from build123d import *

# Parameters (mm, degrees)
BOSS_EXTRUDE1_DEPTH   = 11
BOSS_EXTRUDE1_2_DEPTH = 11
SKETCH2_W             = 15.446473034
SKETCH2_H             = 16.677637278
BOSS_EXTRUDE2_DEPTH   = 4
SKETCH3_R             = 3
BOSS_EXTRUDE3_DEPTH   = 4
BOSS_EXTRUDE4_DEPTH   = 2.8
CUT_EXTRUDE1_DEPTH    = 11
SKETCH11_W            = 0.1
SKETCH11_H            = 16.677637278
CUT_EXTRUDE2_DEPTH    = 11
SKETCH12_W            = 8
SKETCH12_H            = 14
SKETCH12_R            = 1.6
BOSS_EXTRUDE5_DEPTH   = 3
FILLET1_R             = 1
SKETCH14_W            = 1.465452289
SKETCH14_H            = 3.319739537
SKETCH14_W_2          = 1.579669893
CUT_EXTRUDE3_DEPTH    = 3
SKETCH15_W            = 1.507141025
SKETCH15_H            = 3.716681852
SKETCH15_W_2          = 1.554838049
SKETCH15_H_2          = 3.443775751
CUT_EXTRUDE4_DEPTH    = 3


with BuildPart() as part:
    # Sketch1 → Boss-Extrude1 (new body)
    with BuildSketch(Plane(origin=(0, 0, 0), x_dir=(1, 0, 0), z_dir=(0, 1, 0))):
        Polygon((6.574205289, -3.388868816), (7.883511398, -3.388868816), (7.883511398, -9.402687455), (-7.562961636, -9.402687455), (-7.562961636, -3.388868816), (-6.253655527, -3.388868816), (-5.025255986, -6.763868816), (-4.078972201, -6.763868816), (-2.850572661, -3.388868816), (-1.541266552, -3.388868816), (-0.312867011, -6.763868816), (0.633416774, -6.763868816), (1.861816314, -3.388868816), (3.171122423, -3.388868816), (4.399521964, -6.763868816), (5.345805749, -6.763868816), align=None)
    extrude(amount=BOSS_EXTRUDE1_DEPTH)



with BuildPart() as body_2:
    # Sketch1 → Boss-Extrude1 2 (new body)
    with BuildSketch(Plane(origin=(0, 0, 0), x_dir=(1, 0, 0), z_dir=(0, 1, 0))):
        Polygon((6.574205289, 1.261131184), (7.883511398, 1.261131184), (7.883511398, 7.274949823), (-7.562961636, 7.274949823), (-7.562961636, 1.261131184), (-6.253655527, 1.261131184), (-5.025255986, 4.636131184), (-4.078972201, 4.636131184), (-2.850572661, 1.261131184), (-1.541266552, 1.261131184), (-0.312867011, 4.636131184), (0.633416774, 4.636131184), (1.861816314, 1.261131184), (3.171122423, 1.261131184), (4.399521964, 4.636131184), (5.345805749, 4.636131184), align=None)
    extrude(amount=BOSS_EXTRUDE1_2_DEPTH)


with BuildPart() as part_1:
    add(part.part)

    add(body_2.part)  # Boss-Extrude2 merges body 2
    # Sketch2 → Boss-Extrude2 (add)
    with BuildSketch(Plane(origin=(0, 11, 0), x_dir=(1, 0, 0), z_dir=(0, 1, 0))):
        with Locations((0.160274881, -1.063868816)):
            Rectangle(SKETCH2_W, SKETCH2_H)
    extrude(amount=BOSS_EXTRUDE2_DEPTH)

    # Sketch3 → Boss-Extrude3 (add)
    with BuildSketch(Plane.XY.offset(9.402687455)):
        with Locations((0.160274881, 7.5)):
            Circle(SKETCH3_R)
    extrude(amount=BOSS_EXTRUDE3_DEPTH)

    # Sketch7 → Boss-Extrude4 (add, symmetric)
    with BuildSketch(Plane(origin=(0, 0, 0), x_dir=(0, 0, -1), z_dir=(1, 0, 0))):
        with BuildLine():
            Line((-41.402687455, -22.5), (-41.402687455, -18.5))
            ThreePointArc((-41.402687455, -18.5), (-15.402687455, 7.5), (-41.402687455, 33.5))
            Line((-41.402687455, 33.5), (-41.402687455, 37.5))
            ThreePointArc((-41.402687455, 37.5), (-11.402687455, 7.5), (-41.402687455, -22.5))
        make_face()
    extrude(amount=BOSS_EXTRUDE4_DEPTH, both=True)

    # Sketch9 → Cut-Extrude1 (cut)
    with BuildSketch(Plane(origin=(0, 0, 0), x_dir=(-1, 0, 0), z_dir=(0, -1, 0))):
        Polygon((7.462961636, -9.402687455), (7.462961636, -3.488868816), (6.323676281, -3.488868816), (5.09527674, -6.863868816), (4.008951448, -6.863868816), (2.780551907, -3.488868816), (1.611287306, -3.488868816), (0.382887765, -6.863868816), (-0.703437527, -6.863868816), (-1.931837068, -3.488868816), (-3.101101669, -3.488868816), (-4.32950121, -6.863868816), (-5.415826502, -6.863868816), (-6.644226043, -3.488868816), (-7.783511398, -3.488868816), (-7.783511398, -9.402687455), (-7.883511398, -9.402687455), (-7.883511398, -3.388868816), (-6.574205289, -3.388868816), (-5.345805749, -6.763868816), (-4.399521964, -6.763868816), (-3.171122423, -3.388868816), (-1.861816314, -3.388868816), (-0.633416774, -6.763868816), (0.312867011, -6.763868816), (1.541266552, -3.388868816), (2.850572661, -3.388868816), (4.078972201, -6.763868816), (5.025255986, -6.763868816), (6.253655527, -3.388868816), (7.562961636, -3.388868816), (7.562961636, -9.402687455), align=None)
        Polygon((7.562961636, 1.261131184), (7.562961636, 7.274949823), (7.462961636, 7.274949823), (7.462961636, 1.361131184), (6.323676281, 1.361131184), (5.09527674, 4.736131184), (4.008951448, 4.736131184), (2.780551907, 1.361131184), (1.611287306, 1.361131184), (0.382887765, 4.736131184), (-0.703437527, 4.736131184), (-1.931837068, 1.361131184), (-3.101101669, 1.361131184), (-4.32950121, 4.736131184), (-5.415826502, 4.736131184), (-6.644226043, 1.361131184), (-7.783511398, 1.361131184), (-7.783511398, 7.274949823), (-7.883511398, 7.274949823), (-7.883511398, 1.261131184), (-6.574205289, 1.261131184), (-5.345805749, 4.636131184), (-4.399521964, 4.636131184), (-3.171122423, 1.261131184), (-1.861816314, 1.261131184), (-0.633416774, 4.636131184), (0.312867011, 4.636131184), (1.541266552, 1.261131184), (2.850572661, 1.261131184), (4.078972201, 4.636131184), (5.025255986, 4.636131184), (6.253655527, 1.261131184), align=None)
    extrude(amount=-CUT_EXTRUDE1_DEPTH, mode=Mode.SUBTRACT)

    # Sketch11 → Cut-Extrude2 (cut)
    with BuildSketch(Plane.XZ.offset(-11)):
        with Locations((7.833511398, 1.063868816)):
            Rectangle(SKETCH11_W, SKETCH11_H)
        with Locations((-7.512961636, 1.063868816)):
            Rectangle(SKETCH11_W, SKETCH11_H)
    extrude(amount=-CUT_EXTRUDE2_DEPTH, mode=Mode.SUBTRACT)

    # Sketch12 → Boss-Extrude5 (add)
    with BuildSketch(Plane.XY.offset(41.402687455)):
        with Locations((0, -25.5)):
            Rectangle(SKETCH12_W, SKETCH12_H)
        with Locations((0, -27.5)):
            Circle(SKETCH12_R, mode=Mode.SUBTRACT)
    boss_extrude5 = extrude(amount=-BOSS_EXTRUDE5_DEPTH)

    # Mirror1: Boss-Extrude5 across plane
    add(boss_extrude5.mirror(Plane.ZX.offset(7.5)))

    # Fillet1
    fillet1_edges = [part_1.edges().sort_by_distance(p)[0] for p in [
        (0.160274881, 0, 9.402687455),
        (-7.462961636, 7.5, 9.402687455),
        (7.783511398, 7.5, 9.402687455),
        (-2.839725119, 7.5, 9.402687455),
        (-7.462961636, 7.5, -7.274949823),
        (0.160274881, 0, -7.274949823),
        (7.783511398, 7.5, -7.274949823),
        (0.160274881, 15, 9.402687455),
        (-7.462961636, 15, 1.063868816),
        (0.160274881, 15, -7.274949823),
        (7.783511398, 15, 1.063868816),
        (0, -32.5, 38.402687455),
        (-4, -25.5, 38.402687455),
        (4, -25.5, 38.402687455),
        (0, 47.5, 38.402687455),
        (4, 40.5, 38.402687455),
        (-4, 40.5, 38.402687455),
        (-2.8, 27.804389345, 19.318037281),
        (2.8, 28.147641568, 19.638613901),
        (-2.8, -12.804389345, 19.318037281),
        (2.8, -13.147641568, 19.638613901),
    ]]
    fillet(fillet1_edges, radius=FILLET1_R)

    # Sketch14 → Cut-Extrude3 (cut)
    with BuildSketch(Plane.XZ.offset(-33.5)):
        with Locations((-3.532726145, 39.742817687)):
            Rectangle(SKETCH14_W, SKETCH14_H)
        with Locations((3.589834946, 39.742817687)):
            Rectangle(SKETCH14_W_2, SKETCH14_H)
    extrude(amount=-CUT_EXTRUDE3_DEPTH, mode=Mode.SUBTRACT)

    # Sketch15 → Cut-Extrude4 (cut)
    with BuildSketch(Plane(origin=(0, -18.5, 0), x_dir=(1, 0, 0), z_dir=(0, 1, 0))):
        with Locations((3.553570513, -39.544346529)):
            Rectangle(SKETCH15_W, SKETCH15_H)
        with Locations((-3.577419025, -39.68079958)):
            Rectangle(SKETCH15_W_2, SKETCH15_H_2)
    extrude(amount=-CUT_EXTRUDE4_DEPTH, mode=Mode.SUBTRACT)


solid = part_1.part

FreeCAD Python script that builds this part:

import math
import FreeCAD as App
import Part
import Sketcher
from FreeCAD import Vector
Q = App.Units.Quantity


def edges_at(feature, points):
    """Names of the edges that pass closest to the given points."""
    edges = feature.Shape.Edges
    near = lambda p: min(range(len(edges)), key=lambda i: edges[i].distToShape(Part.Vertex(*p))[0])
    return sorted({f"Edge{near(p) + 1}" for p in points})


def add_polygon(sketch, points):
    """Adds a closed chain of lines whose ends are joined by coincident constraints."""
    first, n = sketch.GeometryCount, len(points)
    for a, b in zip(points, points[1:] + points[:1]):
        sketch.addGeometry(Part.LineSegment(App.Vector(*a, 0), App.Vector(*b, 0)), False)
    for i in range(n):
        sketch.addConstraint(Sketcher.Constraint("Coincident", first + i, 2, first + (i + 1) % n, 1))

doc = App.newDocument("Part")
body = doc.addObject("PartDesign::Body", "Body")

# Sketch on XZ plane
sketch1 = body.newObject("Sketcher::SketchObject", "Sketch")
sketch1.AttachmentSupport = (doc.getObject("XZ_Plane"), [""])
sketch1.MapMode = "FlatFace"
add_polygon(sketch1, [(7.883511, 3.388869), (6.574205, 3.388869), (5.345806, 6.763869), (4.399522, 6.763869), (3.171122, 3.388869), (1.861816, 3.388869), (0.633417, 6.763869), (-0.312867, 6.763869), (-1.541267, 3.388869), (-2.850573, 3.388869), (-4.078972, 6.763869), (-5.025256, 6.763869), (-6.253656, 3.388869), (-7.562962, 3.388869), (-7.562962, 9.402687), (7.883511, 9.402687)])  # lines 0-15
sketch1.addConstraint(Sketcher.Constraint("Horizontal", 0))
sketch1.addConstraint(Sketcher.Constraint("Horizontal", 2))
sketch1.addConstraint(Sketcher.Constraint("Horizontal", 4))
sketch1.addConstraint(Sketcher.Constraint("Horizontal", 6))
sketch1.addConstraint(Sketcher.Constraint("Horizontal", 8))
sketch1.addConstraint(Sketcher.Constraint("Horizontal", 10))
sketch1.addConstraint(Sketcher.Constraint("Horizontal", 12))
sketch1.addConstraint(Sketcher.Constraint("Vertical", 13))
sketch1.addConstraint(Sketcher.Constraint("Horizontal", 14))
sketch1.addConstraint(Sketcher.Constraint("Vertical", 15))
sketch1.addConstraint(Sketcher.Constraint("Parallel", 1, 5))
sketch1.addConstraint(Sketcher.Constraint("Parallel", 3, 7))
sketch1.addConstraint(Sketcher.Constraint("Parallel", 5, 9))
sketch1.addConstraint(Sketcher.Constraint("Parallel", 7, 11))
sketch1.addConstraint(Sketcher.Constraint("Horizontal", 0, 2, 3, 2))
sketch1.addConstraint(Sketcher.Constraint("Horizontal", 2, 2, 5, 2))
sketch1.addConstraint(Sketcher.Constraint("Horizontal", 4, 2, 7, 2))
sketch1.addConstraint(Sketcher.Constraint("Horizontal", 6, 2, 9, 2))
sketch1.addConstraint(Sketcher.Constraint("Horizontal", 8, 2, 11, 2))
sketch1.addConstraint(Sketcher.Constraint("Equal", 0, 4))
sketch1.addConstraint(Sketcher.Constraint("Equal", 2, 6))
sketch1.addConstraint(Sketcher.Constraint("Equal", 4, 8))
sketch1.addConstraint(Sketcher.Constraint("Equal", 6, 10))
sketch1.addConstraint(Sketcher.Constraint("Equal", 8, 12))
sketch1.addConstraint(Sketcher.Constraint("Equal", 1, 3))
sketch1.addConstraint(Sketcher.Constraint("Angle", 1, Q("110 deg")))
sketch1.addConstraint(Sketcher.Constraint("DistanceY", 0, 2, 1, 2, Q("3.375 mm")))
sketch1.addConstraint(Sketcher.Constraint("DistanceY", 13, 1, 13, 2, Q("6.013819 mm")))
sketch1.addConstraint(Sketcher.Constraint("DistanceX", 0, 2, 0, 1, Q("1.309306 mm")))
sketch1.addConstraint(Sketcher.Constraint("DistanceX", 2, 2, 2, 1, Q("0.946284 mm")))
sketch1.addConstraint(Sketcher.Constraint("DistanceY", -1, 1, 0, 2, Q("3.388869 mm")))
sketch1.addConstraint(Sketcher.Constraint("DistanceX", -1, 1, 2, 2, Q("4.399522 mm")))
pad1 = body.newObject("PartDesign::Pad", "Pad")
pad1.Profile = sketch1
pad1.Length = 11
pad1.Reversed = True
body2 = doc.addObject("PartDesign::Body", "Body001")

# Sketch on XZ plane
sketch2 = body2.newObject("Sketcher::SketchObject", "Sketch001")
sketch2.AttachmentSupport = (doc.getObject("XZ_Plane001"), [""])
sketch2.MapMode = "FlatFace"
add_polygon(sketch2, [(6.574205, -1.261131), (7.883511, -1.261131), (7.883511, -7.27495), (-7.562962, -7.27495), (-7.562962, -1.261131), (-6.253656, -1.261131), (-5.025256, -4.636131), (-4.078972, -4.636131), (-2.850573, -1.261131), (-1.541267, -1.261131), (-0.312867, -4.636131), (0.633417, -4.636131), (1.861816, -1.261131), (3.171122, -1.261131), (4.399522, -4.636131), (5.345806, -4.636131)])  # lines 0-15
sketch2.addConstraint(Sketcher.Constraint("Horizontal", 0))
sketch2.addConstraint(Sketcher.Constraint("Vertical", 1))
sketch2.addConstraint(Sketcher.Constraint("Horizontal", 2))
sketch2.addConstraint(Sketcher.Constraint("Vertical", 3))
sketch2.addConstraint(Sketcher.Constraint("Horizontal", 4))
sketch2.addConstraint(Sketcher.Constraint("Horizontal", 6))
sketch2.addConstraint(Sketcher.Constraint("Horizontal", 8))
sketch2.addConstraint(Sketcher.Constraint("Horizontal", 10))
sketch2.addConstraint(Sketcher.Constraint("Horizontal", 12))
sketch2.addConstraint(Sketcher.Constraint("Horizontal", 14))
sketch2.addConstraint(Sketcher.Constraint("Parallel", 5, 9))
sketch2.addConstraint(Sketcher.Constraint("Parallel", 7, 11))
sketch2.addConstraint(Sketcher.Constraint("Parallel", 9, 13))
sketch2.addConstraint(Sketcher.Constraint("Parallel", 11, 15))
sketch2.addConstraint(Sketcher.Constraint("Horizontal", 0, 2, 3, 2))
sketch2.addConstraint(Sketcher.Constraint("Horizontal", 4, 2, 7, 2))
sketch2.addConstraint(Sketcher.Constraint("Horizontal", 6, 2, 9, 2))
sketch2.addConstraint(Sketcher.Constraint("Horizontal", 8, 2, 11, 2))
sketch2.addConstraint(Sketcher.Constraint("Horizontal", 10, 2, 13, 2))
sketch2.addConstraint(Sketcher.Constraint("Equal", 0, 4))
sketch2.addConstraint(Sketcher.Constraint("Equal", 4, 8))
sketch2.addConstraint(Sketcher.Constraint("Equal", 6, 10))
sketch2.addConstraint(Sketcher.Constraint("Equal", 8, 12))
sketch2.addConstraint(Sketcher.Constraint("Equal", 10, 14))
sketch2.addConstraint(Sketcher.Constraint("Equal", 5, 7))
sketch2.addConstraint(Sketcher.Constraint("Angle", 5, Q("-70 deg")))
sketch2.addConstraint(Sketcher.Constraint("DistanceY", 5, 2, 4, 2, Q("3.375 mm")))
sketch2.addConstraint(Sketcher.Constraint("DistanceY", 1, 2, 1, 1, Q("6.013819 mm")))
sketch2.addConstraint(Sketcher.Constraint("DistanceX", 0, 1, 0, 2, Q("1.309306 mm")))
sketch2.addConstraint(Sketcher.Constraint("DistanceX", 2, 2, 2, 1, Q("15.446473 mm")))
sketch2.addConstraint(Sketcher.Constraint("DistanceX", -1, 1, 0, 2, Q("7.883511 mm")))
sketch2.addConstraint(Sketcher.Constraint("DistanceY", 0, 2, -1, 1, Q("1.261131 mm")))
pad2 = body2.newObject("PartDesign::Pad", "Pad001")
pad2.Profile = sketch2
pad2.Length = 11
pad2.Reversed = True
body.AllowCompound = True
doc.recompute()

boolean = body.newObject("PartDesign::Boolean", "Boolean")
boolean.Type = "Fuse"
boolean.addObjects([body2])

# Sketch on XZ plane
sketch3 = body.newObject("Sketcher::SketchObject", "Sketch002")
sketch3.AttachmentSupport = (doc.getObject("XZ_Plane"), [""])
sketch3.MapMode = "FlatFace"
sketch3.AttachmentOffset = App.Placement(Vector(0, 0, -11), App.Rotation())
add_polygon(sketch3, [(-7.562962, -7.27495), (-7.562962, 9.402687), (7.883511, 9.402687), (7.883511, -7.27495)])  # lines 0-3
sketch3.addConstraint(Sketcher.Constraint("Vertical", 0))
sketch3.addConstraint(Sketcher.Constraint("Horizontal", 1))
sketch3.addConstraint(Sketcher.Constraint("Vertical", 2))
sketch3.addConstraint(Sketcher.Constraint("Horizontal", 3))
sketch3.addConstraint(Sketcher.Constraint("DistanceX", 1, 1, 1, 2, Q("15.446473 mm")))
sketch3.addConstraint(Sketcher.Constraint("DistanceY", 0, 1, 0, 2, Q("16.677637 mm")))
sketch3.addConstraint(Sketcher.Constraint("DistanceX", 0, 2, -1, 1, Q("7.562962 mm")))
sketch3.addConstraint(Sketcher.Constraint("DistanceY", 2, 2, -1, 1, Q("7.27495 mm")))
pad3 = body.newObject("PartDesign::Pad", "Pad002")
pad3.Profile = sketch3
pad3.Length = 4
pad3.Reversed = True

# Sketch on XY plane
sketch4 = body.newObject("Sketcher::SketchObject", "Sketch003")
sketch4.AttachmentSupport = (doc.getObject("XY_Plane"), [""])
sketch4.MapMode = "FlatFace"
sketch4.AttachmentOffset = App.Placement(Vector(0, 0, 9.402687), App.Rotation())
sketch4.addGeometry(Part.Circle(Vector(0.160275, 7.5, 0), Vector(0, 0, 1), 3), False)
sketch4.addConstraint(Sketcher.Constraint("Diameter", 0, Q("6 mm")))
sketch4.addConstraint(Sketcher.Constraint("DistanceY", -1, 1, 0, 3, Q("7.5 mm")))
sketch4.addConstraint(Sketcher.Constraint("DistanceX", -1, 1, 0, 3, Q("0.160275 mm")))
pad4 = body.newObject("PartDesign::Pad", "Pad003")
pad4.Profile = sketch4
pad4.Length = 4

# Sketch on YZ plane
sketch5 = body.newObject("Sketcher::SketchObject", "Sketch004")
sketch5.AttachmentSupport = (doc.getObject("YZ_Plane"), [""])
sketch5.MapMode = "FlatFace"
sketch5.addGeometry(Part.LineSegment(Vector(-18.5, 41.402687, 0), Vector(-22.5, 41.402687, 0)), False)
sketch5.addGeometry(Part.ArcOfCircle(Part.Circle(Vector(7.5, 41.402687, 0), Vector(0, 0, 1), 30), math.radians(180), math.radians(360)), False)
sketch5.addGeometry(Part.LineSegment(Vector(37.5, 41.402687, 0), Vector(33.5, 41.402687, 0)), False)
sketch5.addGeometry(Part.ArcOfCircle(Part.Circle(Vector(7.5, 41.402687, 0), Vector(0, 0, 1), 26), math.radians(180), math.radians(360)), False)
sketch5.addConstraint(Sketcher.Constraint("Coincident", 0, 2, 1, 1))
sketch5.addConstraint(Sketcher.Constraint("Coincident", 1, 2, 2, 1))
sketch5.addConstraint(Sketcher.Constraint("Coincident", 2, 2, 3, 2))
sketch5.addConstraint(Sketcher.Constraint("Coincident", 3, 1, 0, 1))
sketch5.addConstraint(Sketcher.Constraint("Horizontal", 0))
sketch5.addConstraint(Sketcher.Constraint("Horizontal", 2))
sketch5.addConstraint(Sketcher.Constraint("Coincident", 3, 3, 1, 3))
sketch5.addConstraint(Sketcher.Constraint("Horizontal", 3, 3, 0, 2))
sketch5.addConstraint(Sketcher.Constraint("Horizontal", 0, 2, 1, 2))
sketch5.addConstraint(Sketcher.Constraint("Radius", 1, Q("30 mm")))
sketch5.addConstraint(Sketcher.Constraint("Radius", 3, Q("26 mm")))
sketch5.addConstraint(Sketcher.Constraint("DistanceX", -1, 1, 1, 3, Q("7.5 mm")))
sketch5.addConstraint(Sketcher.Constraint("DistanceY", -1, 1, 1, 3, Q("41.402687 mm")))
pad5 = body.newObject("PartDesign::Pad", "Pad004")
pad5.Profile = sketch5
pad5.Length = 5.6
pad5.Midplane = True

# Sketch on XZ plane
sketch6 = body.newObject("Sketcher::SketchObject", "Sketch005")
sketch6.AttachmentSupport = (doc.getObject("XZ_Plane"), [""])
sketch6.MapMode = "FlatFace"
add_polygon(sketch6, [(-7.462962, 3.488869), (-7.462962, 9.402687), (-7.562962, 9.402687), (-7.562962, 3.388869), (-6.253656, 3.388869), (-5.025256, 6.763869), (-4.078972, 6.763869), (-2.850573, 3.388869), (-1.541267, 3.388869), (-0.312867, 6.763869), (0.633417, 6.763869), (1.861816, 3.388869), (3.171122, 3.388869), (4.399522, 6.763869), (5.345806, 6.763869), (6.574205, 3.388869), (7.883511, 3.388869), (7.883511, 9.402687), (7.783511, 9.402687), (7.783511, 3.488869), (6.644226, 3.488869), (5.415827, 6.863869), (4.329501, 6.863869), (3.101102, 3.488869), (1.931837, 3.488869), (0.703438, 6.863869), (-0.382888, 6.863869), (-1.611287, 3.488869), (-2.780552, 3.488869), (-4.008951, 6.863869), (-5.095277, 6.863869), (-6.323676, 3.488869)])  # lines 0-31
add_polygon(sketch6, [(-7.562962, -1.261131), (-7.562962, -7.27495), (-7.462962, -7.27495), (-7.462962, -1.361131), (-6.323676, -1.361131), (-5.095277, -4.736131), (-4.008951, -4.736131), (-2.780552, -1.361131), (-1.611287, -1.361131), (-0.382888, -4.736131), (0.703438, -4.736131), (1.931837, -1.361131), (3.101102, -1.361131), (4.329501, -4.736131), (5.415827, -4.736131), (6.644226, -1.361131), (7.783511, -1.361131), (7.783511, -7.27495), (7.883511, -7.27495), (7.883511, -1.261131), (6.574205, -1.261131), (5.345806, -4.636131), (4.399522, -4.636131), (3.171122, -1.261131), (1.861816, -1.261131), (0.633417, -4.636131), (-0.312867, -4.636131), (-1.541267, -1.261131), (-2.850573, -1.261131), (-4.078972, -4.636131), (-5.025256, -4.636131), (-6.253656, -1.261131)])  # lines 32-63
sketch6.addConstraint(Sketcher.Constraint("Vertical", 0))
sketch6.addConstraint(Sketcher.Constraint("Horizontal", 1))
sketch6.addConstraint(Sketcher.Constraint("Vertical", 2))
sketch6.addConstraint(Sketcher.Constraint("Horizontal", 3))
sketch6.addConstraint(Sketcher.Constraint("Horizontal", 5))
sketch6.addConstraint(Sketcher.Constraint("Horizontal", 7))
sketch6.addConstraint(Sketcher.Constraint("Horizontal", 9))
sketch6.addConstraint(Sketcher.Constraint("Horizontal", 11))
sketch6.addConstraint(Sketcher.Constraint("Horizontal", 13))
sketch6.addConstraint(Sketcher.Constraint("Horizontal", 15))
sketch6.addConstraint(Sketcher.Constraint("Vertical", 16))
sketch6.addConstraint(Sketcher.Constraint("Horizontal", 17))
sketch6.addConstraint(Sketcher.Constraint("Vertical", 18))
sketch6.addConstraint(Sketcher.Constraint("Horizontal", 19))
sketch6.addConstraint(Sketcher.Constraint("Horizontal", 21))
sketch6.addConstraint(Sketcher.Constraint("Horizontal", 23))
sketch6.addConstraint(Sketcher.Constraint("Horizontal", 25))
sketch6.addConstraint(Sketcher.Constraint("Horizontal", 27))
sketch6.addConstraint(Sketcher.Constraint("Horizontal", 29))
sketch6.addConstraint(Sketcher.Constraint("Horizontal", 31))
sketch6.addConstraint(Sketcher.Constraint("Vertical", 32))
sketch6.addConstraint(Sketcher.Constraint("Horizontal", 33))
sketch6.addConstraint(Sketcher.Constraint("Vertical", 34))
sketch6.addConstraint(Sketcher.Constraint("Horizontal", 35))
sketch6.addConstraint(Sketcher.Constraint("Horizontal", 37))
sketch6.addConstraint(Sketcher.Constraint("Horizontal", 39))
sketch6.addConstraint(Sketcher.Constraint("Horizontal", 41))
sketch6.addConstraint(Sketcher.Constraint("Horizontal", 43))
sketch6.addConstraint(Sketcher.Constraint("Horizontal", 45))
sketch6.addConstraint(Sketcher.Constraint("Horizontal", 47))
sketch6.addConstraint(Sketcher.Constraint("Vertical", 48))
sketch6.addConstraint(Sketcher.Constraint("Horizontal", 49))
sketch6.addConstraint(Sketcher.Constraint("Vertical", 50))
sketch6.addConstraint(Sketcher.Constraint("Horizontal", 51))
sketch6.addConstraint(Sketcher.Constraint("Horizontal", 53))
sketch6.addConstraint(Sketcher.Constraint("Horizontal", 55))
sketch6.addConstraint(Sketcher.Constraint("Horizontal", 57))
sketch6.addConstraint(Sketcher.Constraint("Horizontal", 59))
sketch6.addConstraint(Sketcher.Constraint("Horizontal", 61))
sketch6.addConstraint(Sketcher.Constraint("Horizontal", 63))
sketch6.addConstraint(Sketcher.Constraint("Parallel", 4, 8))
sketch6.addConstraint(Sketcher.Constraint("Parallel", 6, 10))
sketch6.addConstraint(Sketcher.Constraint("Parallel", 8, 12))
sketch6.addConstraint(Sketcher.Constraint("Parallel", 10, 14))
sketch6.addConstraint(Sketcher.Constraint("Parallel", 14, 20))
sketch6.addConstraint(Sketcher.Constraint("Parallel", 12, 22))
sketch6.addConstraint(Sketcher.Constraint("Parallel", 20, 24))
sketch6.addConstraint(Sketcher.Constraint("Parallel", 22, 26))
sketch6.addConstraint(Sketcher.Constraint("Parallel", 24, 28))
sketch6.addConstraint(Sketcher.Constraint("Parallel", 26, 30))
sketch6.addConstraint(Sketcher.Constraint("Parallel", 28, 36))
sketch6.addConstraint(Sketcher.Constraint("Parallel", 30, 38))
sketch6.addConstraint(Sketcher.Constraint("Parallel", 36, 40))
sketch6.addConstraint(Sketcher.Constraint("Parallel", 38, 42))
sketch6.addConstraint(Sketcher.Constraint("Parallel", 40, 44))
sketch6.addConstraint(Sketcher.Constraint("Parallel", 42, 46))
sketch6.addConstraint(Sketcher.Constraint("Parallel", 46, 52))
sketch6.addConstraint(Sketcher.Constraint("Parallel", 44, 54))
sketch6.addConstraint(Sketcher.Constraint("Parallel", 52, 56))
sketch6.addConstraint(Sketcher.Constraint("Parallel", 54, 58))
sketch6.addConstraint(Sketcher.Constraint("Parallel", 56, 60))
sketch6.addConstraint(Sketcher.Constraint("Parallel", 58, 62))
sketch6.addConstraint(Sketcher.Constraint("Horizontal", 3, 2, 6, 2))
sketch6.addConstraint(Sketcher.Constraint("Horizontal", 5, 2, 8, 2))
sketch6.addConstraint(Sketcher.Constraint("Horizontal", 7, 2, 10, 2))
sketch6.addConstraint(Sketcher.Constraint("Horizontal", 9, 2, 12, 2))
sketch6.addConstraint(Sketcher.Constraint("Horizontal", 11, 2, 14, 2))
sketch6.addConstraint(Sketcher.Constraint("Horizontal", 1, 2, 16, 2))
sketch6.addConstraint(Sketcher.Constraint("Horizontal", 19, 2, 22, 2))
sketch6.addConstraint(Sketcher.Constraint("Horizontal", 21, 2, 24, 2))
sketch6.addConstraint(Sketcher.Constraint("Horizontal", 23, 2, 26, 2))
sketch6.addConstraint(Sketcher.Constraint("Horizontal", 25, 2, 28, 2))
sketch6.addConstraint(Sketcher.Constraint("Horizontal", 27, 2, 30, 2))
sketch6.addConstraint(Sketcher.Constraint("Horizontal", 35, 2, 38, 2))
sketch6.addConstraint(Sketcher.Constraint("Horizontal", 37, 2, 40, 2))
sketch6.addConstraint(Sketcher.Constraint("Horizontal", 39, 2, 42, 2))
sketch6.addConstraint(Sketcher.Constraint("Horizontal", 41, 2, 44, 2))
sketch6.addConstraint(Sketcher.Constraint("Horizontal", 43, 2, 46, 2))
sketch6.addConstraint(Sketcher.Constraint("Horizontal", 33, 2, 48, 2))
sketch6.addConstraint(Sketcher.Constraint("Horizontal", 51, 2, 54, 2))
sketch6.addConstraint(Sketcher.Constraint("Horizontal", 53, 2, 56, 2))
sketch6.addConstraint(Sketcher.Constraint("Horizontal", 55, 2, 58, 2))
sketch6.addConstraint(Sketcher.Constraint("Horizontal", 57, 2, 60, 2))
sketch6.addConstraint(Sketcher.Constraint("Horizontal", 59, 2, 62, 2))
sketch6.addConstraint(Sketcher.Constraint("Vertical", 2, 2, 32, 2))
sketch6.addConstraint(Sketcher.Constraint("Vertical", 31, 2, 33, 2))
sketch6.addConstraint(Sketcher.Constraint("Vertical", 30, 2, 35, 2))
sketch6.addConstraint(Sketcher.Constraint("Vertical", 29, 2, 36, 2))
sketch6.addConstraint(Sketcher.Constraint("Vertical", 28, 2, 37, 2))
sketch6.addConstraint(Sketcher.Constraint("Vertical", 27, 2, 38, 2))
sketch6.addConstraint(Sketcher.Constraint("Vertical", 26, 2, 39, 2))
sketch6.addConstraint(Sketcher.Constraint("Vertical", 24, 2, 41, 2))
sketch6.addConstraint(Sketcher.Constraint("Vertical", 22, 2, 43, 2))
sketch6.addConstraint(Sketcher.Constraint("Vertical", 20, 2, 45, 2))
sketch6.addConstraint(Sketcher.Constraint("Vertical", 18, 2, 47, 2))
sketch6.addConstraint(Sketcher.Constraint("Vertical", 16, 2, 49, 2))
sketch6.addConstraint(Sketcher.Constraint("Vertical", 14, 2, 51, 2))
sketch6.addConstraint(Sketcher.Constraint("Vertical", 13, 2, 52, 2))
sketch6.addConstraint(Sketcher.Constraint("Vertical", 12, 2, 53, 2))
sketch6.addConstraint(Sketcher.Constraint("Vertical", 10, 2, 55, 2))
sketch6.addConstraint(Sketcher.Constraint("Vertical", 8, 2, 57, 2))
sketch6.addConstraint(Sketcher.Constraint("Vertical", 6, 2, 59, 2))
sketch6.addConstraint(Sketcher.Constraint("Vertical", 4, 2, 61, 2))
sketch6.addConstraint(Sketcher.Constraint("Equal", 3, 7))
sketch6.addConstraint(Sketcher.Constraint("Equal", 5, 9))
sketch6.addConstraint(Sketcher.Constraint("Equal", 7, 11))
sketch6.addConstraint(Sketcher.Constraint("Equal", 9, 13))
sketch6.addConstraint(Sketcher.Constraint("Equal", 11, 15))
sketch6.addConstraint(Sketcher.Constraint("Equal", 1, 17))
sketch6.addConstraint(Sketcher.Constraint("Equal", 21, 25))
sketch6.addConstraint(Sketcher.Constraint("Equal", 23, 27))
sketch6.addConstraint(Sketcher.Constraint("Equal", 25, 29))
sketch6.addConstraint(Sketcher.Constraint("Equal", 19, 31))
sketch6.addConstraint(Sketcher.Constraint("Equal", 16, 32))
sketch6.addConstraint(Sketcher.Constraint("Equal", 18, 34))
sketch6.addConstraint(Sketcher.Constraint("Equal", 14, 20))
sketch6.addConstraint(Sketcher.Constraint("Angle", 4, Q("70 deg")))
sketch6.addConstraint(Sketcher.Constraint("DistanceX", 1, 2, 1, 1, Q("0.1 mm")))
sketch6.addConstraint(Sketcher.Constraint("Distance", 4, Q("3.5916 mm")))
sketch6.addConstraint(Sketcher.Constraint("DistanceY", 0, 1, 0, 2, Q("5.913819 mm")))
sketch6.addConstraint(Sketcher.Constraint("DistanceY", 2, 2, 2, 1, Q("6.013819 mm")))
sketch6.addConstraint(Sketcher.Constraint("DistanceX", -1, 1, 21, 2, Q("4.329501 mm")))
sketch6.addConstraint(Sketcher.Constraint("DistanceX", 3, 1, 3, 2, Q("1.309306 mm")))
sketch6.addConstraint(Sketcher.Constraint("DistanceX", 5, 1, 5, 2, Q("0.946284 mm")))
sketch6.addConstraint(Sketcher.Constraint("DistanceX", 19, 2, 19, 1, Q("1.139285 mm")))
sketch6.addConstraint(Sketcher.Constraint("DistanceX", 21, 2, 21, 1, Q("1.086325 mm")))
sketch6.addConstraint(Sketcher.Constraint("DistanceY", -1, 1, 2, 2, Q("3.388869 mm")))
sketch6.addConstraint(Sketcher.Constraint("DistanceY", 32, 2, -1, 1, Q("7.27495 mm")))
pocket1 = body.newObject("PartDesign::Pocket", "Pocket")
pocket1.Profile = sketch6
pocket1.Length = 11

# Sketch on XZ plane
sketch7 = body.newObject("Sketcher::SketchObject", "Sketch006")
sketch7.AttachmentSupport = (doc.getObject("XZ_Plane"), [""])
sketch7.MapMode = "FlatFace"
sketch7.AttachmentOffset = App.Placement(Vector(0, 0, -11), App.Rotation())
add_polygon(sketch7, [(7.783511, 9.402687), (7.783511, -7.27495), (7.883511, -7.27495), (7.883511, 9.402687)])  # lines 0-3
add_polygon(sketch7, [(-7.562962, 9.402687), (-7.562962, -7.27495), (-7.462962, -7.27495), (-7.462962, 9.402687)])  # lines 4-7
sketch7.addConstraint(Sketcher.Constraint("Vertical", 0))
sketch7.addConstraint(Sketcher.Constraint("Horizontal", 1))
sketch7.addConstraint(Sketcher.Constraint("Vertical", 2))
sketch7.addConstraint(Sketcher.Constraint("Horizontal", 3))
sketch7.addConstraint(Sketcher.Constraint("Vertical", 4))
sketch7.addConstraint(Sketcher.Constraint("Horizontal", 5))
sketch7.addConstraint(Sketcher.Constraint("Vertical", 6))
sketch7.addConstraint(Sketcher.Constraint("Horizontal", 7))
sketch7.addConstraint(Sketcher.Constraint("Horizontal", 1, 2, 4, 2))
sketch7.addConstraint(Sketcher.Constraint("Horizontal", 3, 2, 6, 2))
sketch7.addConstraint(Sketcher.Constraint("Equal", 3, 5))
sketch7.addConstraint(Sketcher.Constraint("DistanceX", 1, 1, 1, 2, Q("0.1 mm")))
sketch7.addConstraint(Sketcher.Constraint("DistanceY", 0, 2, 0, 1, Q("16.677637 mm")))
sketch7.addConstraint(Sketcher.Constraint("DistanceX", -1, 1, 0, 2, Q("7.783511 mm")))
sketch7.addConstraint(Sketcher.Constraint("DistanceY", 0, 2, -1, 1, Q("7.27495 mm")))
sketch7.addConstraint(Sketcher.Constraint("DistanceX", 4, 2, -1, 1, Q("7.562962 mm")))
pocket2 = body.newObject("PartDesign::Pocket", "Pocket001")
pocket2.Profile = sketch7
pocket2.Length = 11

# Sketch on XY plane
sketch8 = body.newObject("Sketcher::SketchObject", "Sketch007")
sketch8.AttachmentSupport = (doc.getObject("XY_Plane"), [""])
sketch8.MapMode = "FlatFace"
sketch8.AttachmentOffset = App.Placement(Vector(0, 0, 41.402687), App.Rotation())
add_polygon(sketch8, [(-4, -18.5), (-4, -32.5), (4, -32.5), (4, -18.5)])  # lines 0-3
sketch8.addGeometry(Part.Circle(Vector(0, -27.5, 0), Vector(0, 0, 1), 1.6), False)  # 4
sketch8.addConstraint(Sketcher.Constraint("Vertical", 0))
sketch8.addConstraint(Sketcher.Constraint("Horizontal", 1))
sketch8.addConstraint(Sketcher.Constraint("Vertical", 2))
sketch8.addConstraint(Sketcher.Constraint("Horizontal", 3))
sketch8.addConstraint(Sketcher.Constraint("PointOnObject", 4, 3, -2))
sketch8.addConstraint(Sketcher.Constraint("Diameter", 4, Q("3.2 mm")))
sketch8.addConstraint(Sketcher.Constraint("DistanceX", 1, 1, 1, 2, Q("8 mm")))
sketch8.addConstraint(Sketcher.Constraint("DistanceY", 0, 2, 0, 1, Q("14 mm")))
sketch8.addConstraint(Sketcher.Constraint("DistanceX", 0, 2, -1, 1, Q("4 mm")))
sketch8.addConstraint(Sketcher.Constraint("DistanceY", 0, 2, 4, 3, Q("5 mm")))
sketch8.addConstraint(Sketcher.Constraint("DistanceY", 4, 3, -1, 1, Q("27.5 mm")))
pad6 = body.newObject("PartDesign::Pad", "Pad005")
pad6.Profile = sketch8
pad6.Length = 3
pad6.Reversed = True
doc.recompute()

datumplane = body.newObject("PartDesign::Plane", "DatumPlane")
datumplane.AttachmentSupport = (doc.getObject("XZ_Plane"), [""])
datumplane.MapMode = "FlatFace"
datumplane.AttachmentOffset = App.Placement(Vector(0, 0, -7.5), App.Rotation())
mirrored = body.newObject("PartDesign::Mirrored", "Mirrored")
mirrored.Originals = [pad6]
mirrored.MirrorPlane = (datumplane, [""])
body.Tip = mirrored
doc.recompute()

fillet = body.newObject("PartDesign::Fillet", "Fillet")
fillet.Base = (mirrored, edges_at(mirrored, [
    (0.16, 0, 9.403),
    (-7.463, 7.5, 9.403),
    (7.784, 7.5, 9.403),
    (-2.84, 7.5, 9.403),
    (-7.463, 7.5, -7.275),
    (0.16, 0, -7.275),
    (7.784, 7.5, -7.275),
    (0.16, 15, 9.403),
    (-7.463, 15, 1.064),
    (0.16, 15, -7.275),
    (7.784, 15, 1.064),
    (0, -32.5, 38.403),
    (-4, -25.5, 38.403),
    (4, -25.5, 38.403),
    (0, 47.5, 38.403),
    (4, 40.5, 38.403),
    (-4, 40.5, 38.403),
    (-2.8, 27.804, 19.318),
    (2.8, 28.148, 19.639),
    (-2.8, -12.804, 19.318),
    (2.8, -13.148, 19.639),
]))
fillet.Radius = 1

# Sketch on XZ plane
sketch9 = body.newObject("Sketcher::SketchObject", "Sketch008")
sketch9.AttachmentSupport = (doc.getObject("XZ_Plane"), [""])
sketch9.MapMode = "FlatFace"
sketch9.AttachmentOffset = App.Placement(Vector(0, 0, -33.5), App.Rotation())
add_polygon(sketch9, [(-4.265452, 41.402687), (-4.265452, 38.082948), (-2.8, 38.082948), (-2.8, 41.402687)])  # lines 0-3
add_polygon(sketch9, [(2.8, 41.402687), (2.8, 38.082948), (4.37967, 38.082948), (4.37967, 41.402687)])  # lines 4-7
sketch9.addConstraint(Sketcher.Constraint("Vertical", 0))
sketch9.addConstraint(Sketcher.Constraint("Horizontal", 1))
sketch9.addConstraint(Sketcher.Constraint("Vertical", 2))
sketch9.addConstraint(Sketcher.Constraint("Horizontal", 3))
sketch9.addConstraint(Sketcher.Constraint("Vertical", 4))
sketch9.addConstraint(Sketcher.Constraint("Horizontal", 5))
sketch9.addConstraint(Sketcher.Constraint("Vertical", 6))
sketch9.addConstraint(Sketcher.Constraint("Horizontal", 7))
sketch9.addConstraint(Sketcher.Constraint("Symmetric", 1, 2, 4, 2, -2))
sketch9.addConstraint(Sketcher.Constraint("Horizontal", 3, 2, 6, 2))
sketch9.addConstraint(Sketcher.Constraint("DistanceX", 1, 2, -1, 1, Q("2.8 mm")))
sketch9.addConstraint(Sketcher.Constraint("DistanceX", 5, 1, 5, 2, Q("1.57967 mm")))
sketch9.addConstraint(Sketcher.Constraint("DistanceY", 0, 2, 0, 1, Q("3.31974 mm")))
sketch9.addConstraint(Sketcher.Constraint("DistanceX", 1, 1, 1, 2, Q("1.465452 mm")))
sketch9.addConstraint(Sketcher.Constraint("DistanceY", -1, 1, 0, 2, Q("38.082948 mm")))
pocket3 = body.newObject("PartDesign::Pocket", "Pocket002")
pocket3.Profile = sketch9
pocket3.Length = 3

# Sketch on XZ plane
sketch10 = body.newObject("Sketcher::SketchObject", "Sketch009")
sketch10.AttachmentSupport = (doc.getObject("XZ_Plane"), [""])
sketch10.MapMode = "FlatFace"
sketch10.AttachmentOffset = App.Placement(Vector(0, 0, 18.5), App.Rotation())
add_polygon(sketch10, [(2.8, 37.686006), (2.8, 41.402687), (4.307141, 41.402687), (4.307141, 37.686006)])  # lines 0-3
add_polygon(sketch10, [(-4.354838, 37.958912), (-4.354838, 41.402687), (-2.8, 41.402687), (-2.8, 37.958912)])  # lines 4-7
sketch10.addConstraint(Sketcher.Constraint("Vertical", 0))
sketch10.addConstraint(Sketcher.Constraint("Horizontal", 1))
sketch10.addConstraint(Sketcher.Constraint("Vertical", 2))
sketch10.addConstraint(Sketcher.Constraint("Horizontal", 3))
sketch10.addConstraint(Sketcher.Constraint("Vertical", 4))
sketch10.addConstraint(Sketcher.Constraint("Horizontal", 5))
sketch10.addConstraint(Sketcher.Constraint("Vertical", 6))
sketch10.addConstraint(Sketcher.Constraint("Horizontal", 7))
sketch10.addConstraint(Sketcher.Constraint("Symmetric", 0, 2, 5, 2, -2))
sketch10.addConstraint(Sketcher.Constraint("DistanceX", -1, 1, 0, 2, Q("2.8 mm")))
sketch10.addConstraint(Sketcher.Constraint("DistanceX", 1, 1, 1, 2, Q("1.507141 mm")))
sketch10.addConstraint(Sketcher.Constraint("DistanceX", 5, 1, 5, 2, Q("1.554838 mm")))
sketch10.addConstraint(Sketcher.Constraint("DistanceY", 0, 1, 0, 2, Q("3.716682 mm")))
sketch10.addConstraint(Sketcher.Constraint("DistanceY", 4, 1, 4, 2, Q("3.443776 mm")))
sketch10.addConstraint(Sketcher.Constraint("DistanceY", -1, 1, 6, 2, Q("37.958912 mm")))
pocket4 = body.newObject("PartDesign::Pocket", "Pocket003")
pocket4.Profile = sketch10
pocket4.Length = 3
pocket4.Reversed = True

doc.recompute()
